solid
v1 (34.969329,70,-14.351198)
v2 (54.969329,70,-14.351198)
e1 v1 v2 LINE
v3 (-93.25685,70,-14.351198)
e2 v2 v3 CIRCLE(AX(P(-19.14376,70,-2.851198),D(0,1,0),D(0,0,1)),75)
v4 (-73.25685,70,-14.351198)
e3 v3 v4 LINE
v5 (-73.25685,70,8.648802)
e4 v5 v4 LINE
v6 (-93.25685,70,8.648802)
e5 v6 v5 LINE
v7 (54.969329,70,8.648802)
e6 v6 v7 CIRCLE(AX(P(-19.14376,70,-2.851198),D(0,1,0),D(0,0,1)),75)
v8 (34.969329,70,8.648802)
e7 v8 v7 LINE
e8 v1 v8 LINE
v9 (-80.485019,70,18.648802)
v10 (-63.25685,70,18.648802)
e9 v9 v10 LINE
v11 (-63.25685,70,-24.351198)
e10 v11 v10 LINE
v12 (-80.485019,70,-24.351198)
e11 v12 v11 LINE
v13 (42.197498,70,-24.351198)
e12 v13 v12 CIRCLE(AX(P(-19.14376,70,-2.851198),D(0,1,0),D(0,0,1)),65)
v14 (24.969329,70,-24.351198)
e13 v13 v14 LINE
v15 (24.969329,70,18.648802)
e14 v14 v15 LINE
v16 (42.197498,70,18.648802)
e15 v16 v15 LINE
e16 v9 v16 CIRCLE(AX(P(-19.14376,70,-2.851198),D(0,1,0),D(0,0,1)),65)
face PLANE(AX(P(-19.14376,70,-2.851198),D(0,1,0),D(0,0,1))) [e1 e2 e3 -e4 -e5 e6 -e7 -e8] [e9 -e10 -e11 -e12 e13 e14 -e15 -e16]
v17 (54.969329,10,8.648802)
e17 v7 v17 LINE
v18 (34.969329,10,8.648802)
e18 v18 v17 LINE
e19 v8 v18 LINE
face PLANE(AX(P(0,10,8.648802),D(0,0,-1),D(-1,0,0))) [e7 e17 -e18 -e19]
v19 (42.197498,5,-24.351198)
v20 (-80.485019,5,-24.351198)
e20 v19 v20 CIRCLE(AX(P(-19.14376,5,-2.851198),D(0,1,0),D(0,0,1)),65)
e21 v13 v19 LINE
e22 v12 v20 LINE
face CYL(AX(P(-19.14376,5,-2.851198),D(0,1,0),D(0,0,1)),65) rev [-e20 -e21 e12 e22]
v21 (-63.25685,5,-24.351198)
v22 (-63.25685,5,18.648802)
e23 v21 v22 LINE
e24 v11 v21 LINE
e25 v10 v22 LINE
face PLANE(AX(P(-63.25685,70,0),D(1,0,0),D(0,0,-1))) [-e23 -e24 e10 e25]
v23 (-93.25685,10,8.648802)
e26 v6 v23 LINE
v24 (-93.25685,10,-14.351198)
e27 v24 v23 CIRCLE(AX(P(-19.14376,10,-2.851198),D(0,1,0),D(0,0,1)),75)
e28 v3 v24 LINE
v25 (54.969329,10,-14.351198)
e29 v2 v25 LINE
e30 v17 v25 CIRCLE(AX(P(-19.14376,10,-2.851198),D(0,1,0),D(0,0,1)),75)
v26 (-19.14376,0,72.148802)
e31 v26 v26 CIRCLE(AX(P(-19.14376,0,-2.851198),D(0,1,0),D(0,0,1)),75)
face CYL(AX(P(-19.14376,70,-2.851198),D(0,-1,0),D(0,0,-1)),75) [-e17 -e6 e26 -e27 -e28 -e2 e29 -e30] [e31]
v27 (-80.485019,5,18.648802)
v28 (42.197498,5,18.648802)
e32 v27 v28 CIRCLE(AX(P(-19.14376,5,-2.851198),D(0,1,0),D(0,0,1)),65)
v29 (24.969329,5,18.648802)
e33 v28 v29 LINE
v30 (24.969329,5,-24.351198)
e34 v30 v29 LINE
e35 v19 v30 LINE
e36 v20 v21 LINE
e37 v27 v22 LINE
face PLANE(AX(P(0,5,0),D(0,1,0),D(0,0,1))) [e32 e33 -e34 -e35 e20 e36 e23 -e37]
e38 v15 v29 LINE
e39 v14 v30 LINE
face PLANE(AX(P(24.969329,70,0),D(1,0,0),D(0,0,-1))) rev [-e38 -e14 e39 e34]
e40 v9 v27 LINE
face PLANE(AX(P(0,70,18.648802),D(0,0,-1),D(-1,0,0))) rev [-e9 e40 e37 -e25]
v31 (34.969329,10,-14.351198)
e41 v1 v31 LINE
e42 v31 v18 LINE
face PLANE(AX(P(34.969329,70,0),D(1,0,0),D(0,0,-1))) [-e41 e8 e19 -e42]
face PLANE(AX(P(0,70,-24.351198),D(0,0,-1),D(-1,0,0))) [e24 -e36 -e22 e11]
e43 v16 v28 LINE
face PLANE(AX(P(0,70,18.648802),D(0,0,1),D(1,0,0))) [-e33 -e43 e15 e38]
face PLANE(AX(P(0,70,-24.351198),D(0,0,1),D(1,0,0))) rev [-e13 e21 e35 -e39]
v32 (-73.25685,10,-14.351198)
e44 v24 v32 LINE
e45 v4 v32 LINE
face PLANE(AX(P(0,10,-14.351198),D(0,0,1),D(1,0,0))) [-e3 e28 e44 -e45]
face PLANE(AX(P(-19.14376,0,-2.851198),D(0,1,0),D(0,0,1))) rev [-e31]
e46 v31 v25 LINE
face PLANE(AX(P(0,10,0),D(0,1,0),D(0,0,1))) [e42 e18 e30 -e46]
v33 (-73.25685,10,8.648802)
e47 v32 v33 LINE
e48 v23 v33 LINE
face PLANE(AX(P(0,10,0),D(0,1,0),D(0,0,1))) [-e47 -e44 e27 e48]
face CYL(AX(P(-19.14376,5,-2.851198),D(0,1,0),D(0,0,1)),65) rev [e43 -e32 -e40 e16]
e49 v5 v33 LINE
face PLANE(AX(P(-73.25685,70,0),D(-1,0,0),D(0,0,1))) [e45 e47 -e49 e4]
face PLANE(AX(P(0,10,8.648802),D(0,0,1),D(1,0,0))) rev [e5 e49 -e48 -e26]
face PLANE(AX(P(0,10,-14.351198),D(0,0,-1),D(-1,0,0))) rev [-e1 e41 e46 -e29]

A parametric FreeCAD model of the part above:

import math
import FreeCAD as App
import Part
import Sketcher

doc = App.newDocument("Part")
body = doc.addObject("PartDesign::Body", "Body")

sketch1 = body.newObject("Sketcher::SketchObject", "Sketch")
sketch1.AttachmentSupport = (doc.getObject("XZ_Plane"), [""])
sketch1.MapMode = "FlatFace"
sketch1.addGeometry(Part.Circle(App.Vector(-19, -3, 0), App.Vector(0, 0, 1), 75), False)
sketch1.addConstraint([
    Sketcher.Constraint("Diameter", 0, 150.0),
    Sketcher.Constraint("DistanceY", 0, 3, -1, 1, 2.851198),
    Sketcher.Constraint("DistanceX", 0, 3, -1, 1, 19.14376),
])
pad1 = body.newObject("PartDesign::Pad", "Pad")
pad1.Profile = sketch1
pad1.Length = 70
pad1.Reversed = True

sketch2 = body.newObject("Sketcher::SketchObject", "Sketch001")
sketch2.AttachmentSupport = (doc.getObject("XZ_Plane"), [""])
sketch2.MapMode = "FlatFace"
sketch2.AttachmentOffset = App.Placement(App.Vector(0, 0, -70), App.Rotation())
sketch2.addGeometry([
    Part.LineSegment(App.Vector(35, -14, 0), App.Vector(45, -14, 0)),
    Part.ArcOfCircle(Part.Circle(App.Vector(-19, -3, 0), App.Vector(0, 0, 1), 65), math.radians(-170), math.radians(-10)),
    Part.LineSegment(App.Vector(-83, -14, 0), App.Vector(-73, -14, 0)),
    Part.LineSegment(App.Vector(-73, -14, 0), App.Vector(-73, 9, 0)),
    Part.LineSegment(App.Vector(-73, 9, 0), App.Vector(-83, 9, 0)),
    Part.ArcOfCircle(Part.Circle(App.Vector(-19, -3, 0), App.Vector(0, 0, 1), 65), math.radians(10), math.radians(170)),
    Part.LineSegment(App.Vector(45, 9, 0), App.Vector(35, 9, 0)),
    Part.LineSegment(App.Vector(35, 9, 0), App.Vector(35, -14, 0)),
], False)
sketch2.addConstraint([
    Sketcher.Constraint("Coincident", 0, 2, 1, 2),
    Sketcher.Constraint("Coincident", 1, 1, 2, 1),
    Sketcher.Constraint("Coincident", 2, 2, 3, 1),
    Sketcher.Constraint("Coincident", 3, 2, 4, 1),
    Sketcher.Constraint("Coincident", 4, 2, 5, 2),
    Sketcher.Constraint("Coincident", 5, 1, 6, 1),
    Sketcher.Constraint("Coincident", 6, 2, 7, 1),
    Sketcher.Constraint("Coincident", 7, 2, 0, 1),
    Sketcher.Constraint("Horizontal", 0),
    Sketcher.Constraint("Horizontal", 2),
    Sketcher.Constraint("Vertical", 3),
    Sketcher.Constraint("Horizontal", 4),
    Sketcher.Constraint("Horizontal", 6),
    Sketcher.Constraint("Vertical", 7),
    Sketcher.Constraint("Coincident", 5, 3, 1, 3),
    Sketcher.Constraint("Equal", 1, 5),
    Sketcher.Constraint("Horizontal", 0, 2, 1, 1),
    Sketcher.Constraint("Horizontal", 4, 2, 5, 1),
    Sketcher.Constraint("Vertical", 1, 1, 4, 2),
    Sketcher.Constraint("Equal", 0, 2),
    Sketcher.Constraint("Radius", 1, 65.0),
    Sketcher.Constraint("DistanceY", 3, 1, 3, 2, 23.0),
    Sketcher.Constraint("DistanceY", 1, 3, -1, 1, 2.851198),
    Sketcher.Constraint("DistanceX", 0, 1, 0, 2, 9.861515),
    Sketcher.Constraint("DistanceX", 1, 3, -1, 1, 19.14376),
])
pocket1 = body.newObject("PartDesign::Pocket", "Pocket")
pocket1.Profile = sketch2
pocket1.Length = 65
pocket1.Reversed = True

sketch3 = body.newObject("Sketcher::SketchObject", "Sketch002")
sketch3.AttachmentSupport = (doc.getObject("XZ_Plane"), [""])
sketch3.MapMode = "FlatFace"
sketch3.AttachmentOffset = App.Placement(App.Vector(0, 0, -70), App.Rotation())
sketch3.addGeometry([
    Part.LineSegment(App.Vector(57, 9, 0), App.Vector(57, -14, 0)),
    Part.LineSegment(App.Vector(57, -14, 0), App.Vector(45, -14, 0)),
    Part.ArcOfCircle(Part.Circle(App.Vector(-19, -3, 0), App.Vector(0, 0, 1), 65), math.radians(-170), math.radians(-10)),
    Part.LineSegment(App.Vector(-83, -14, 0), App.Vector(-96, -14, 0)),
    Part.LineSegment(App.Vector(-96, -14, 0), App.Vector(-96, 9, 0)),
    Part.LineSegment(App.Vector(-96, 9, 0), App.Vector(-83, 9, 0)),
    Part.ArcOfCircle(Part.Circle(App.Vector(-19, -3, 0), App.Vector(0, 0, 1), 65), math.radians(10), math.radians(170)),
    Part.LineSegment(App.Vector(45, 9, 0), App.Vector(57, 9, 0)),
], False)
sketch3.addConstraint([
    Sketcher.Constraint("Coincident", 0, 2, 1, 1),
    Sketcher.Constraint("Coincident", 1, 2, 2, 2),
    Sketcher.Constraint("Coincident", 2, 1, 3, 1),
    Sketcher.Constraint("Coincident", 3, 2, 4, 1),
    Sketcher.Constraint("Coincident", 4, 2, 5, 1),
    Sketcher.Constraint("Coincident", 5, 2, 6, 2),
    Sketcher.Constraint("Coincident", 6, 1, 7, 1),
    Sketcher.Constraint("Coincident", 7, 2, 0, 1),
    Sketcher.Constraint("Vertical", 0),
    Sketcher.Constraint("Horizontal", 1),
    Sketcher.Constraint("Horizontal", 3),
    Sketcher.Constraint("Vertical", 4),
    Sketcher.Constraint("Horizontal", 5),
    Sketcher.Constraint("Horizontal", 7),
    Sketcher.Constraint("Coincident", 6, 3, 2, 3),
    Sketcher.Constraint("Equal", 2, 6),
    Sketcher.Constraint("Horizontal", 1, 2, 2, 1),
    Sketcher.Constraint("Horizontal", 5, 2, 6, 1),
    Sketcher.Constraint("Vertical", 2, 1, 5, 2),
    Sketcher.Constraint("Radius", 2, 65.0),
    Sketcher.Constraint("DistanceY", 0, 2, 0, 1, 23.0),
    Sketcher.Constraint("DistanceY", 2, 3, -1, 1, 2.851198),
    Sketcher.Constraint("DistanceX", 3, 2, 2, 3, 77.006101),
    Sketcher.Constraint("DistanceX", 1, 2, 1, 1, 12.130613),
    Sketcher.Constraint("DistanceX", 2, 3, -1, 1, 19.14376),
])
pocket2 = body.newObject("PartDesign::Pocket", "Pocket001")
pocket2.Profile = sketch3
pocket2.Length = 60
pocket2.Reversed = True

sketch4 = body.newObject("Sketcher::SketchObject", "Sketch003")
sketch4.AttachmentSupport = (doc.getObject("XZ_Plane"), [""])
sketch4.MapMode = "FlatFace"
sketch4.AttachmentOffset = App.Placement(App.Vector(0, 0, -5), App.Rotation())
sketch4.addGeometry([
    Part.ArcOfCircle(Part.Circle(App.Vector(-19, -3, 0), App.Vector(0, 0, 1), 65), math.radians(-169.81), math.radians(-160.68)),
    Part.LineSegment(App.Vector(-83, -14, 0), App.Vector(-73, -14, 0)),
    Part.LineSegment(App.Vector(-73, -14, 0), App.Vector(-73, 9, 0)),
    Part.LineSegment(App.Vector(-73, 9, 0), App.Vector(-83, 9, 0)),
    Part.ArcOfCircle(Part.Circle(App.Vector(-19, -3, 0), App.Vector(0, 0, 1), 65), math.radians(160.68), math.radians(169.81)),
    Part.LineSegment(App.Vector(-80, 19, 0), App.Vector(-63, 19, 0)),
    Part.LineSegment(App.Vector(-63, 19, 0), App.Vector(-63, -24, 0)),
    Part.LineSegment(App.Vector(-63, -24, 0), App.Vector(-80, -24, 0)),
    Part.LineSegment(App.Vector(25, -24, 0), App.Vector(25, 19, 0)),
    Part.LineSegment(App.Vector(25, 19, 0), App.Vector(42, 19, 0)),
    Part.ArcOfCircle(Part.Circle(App.Vector(-19, -3, 0), App.Vector(0, 0, 1), 65), math.radians(10.19), math.radians(19.32)),
    Part.LineSegment(App.Vector(45, 9, 0), App.Vector(35, 9, 0)),
    Part.LineSegment(App.Vector(35, 9, 0), App.Vector(35, -14, 0)),
    Part.LineSegment(App.Vector(35, -14, 0), App.Vector(45, -14, 0)),
    Part.ArcOfCircle(Part.Circle(App.Vector(-19, -3, 0), App.Vector(0, 0, 1), 65), math.radians(-19.32), math.radians(-10.19)),
    Part.LineSegment(App.Vector(42, -24, 0), App.Vector(25, -24, 0)),
], False)
sketch4.addConstraint([
    Sketcher.Constraint("Coincident", 0, 1, 1, 1),
    Sketcher.Constraint("Coincident", 1, 2, 2, 1),
    Sketcher.Constraint("Coincident", 2, 2, 3, 1),
    Sketcher.Constraint("Coincident", 3, 2, 4, 2),
    Sketcher.Constraint("Coincident", 4, 1, 5, 1),
    Sketcher.Constraint("Coincident", 5, 2, 6, 1),
    Sketcher.Constraint("Coincident", 6, 2, 7, 1),
    Sketcher.Constraint("Coincident", 7, 2, 0, 2),
    Sketcher.Constraint("Coincident", 8, 2, 9, 1),
    Sketcher.Constraint("Coincident", 9, 2, 10, 2),
    Sketcher.Constraint("Coincident", 10, 1, 11, 1),
    Sketcher.Constraint("Coincident", 11, 2, 12, 1),
    Sketcher.Constraint("Coincident", 12, 2, 13, 1),
    Sketcher.Constraint("Coincident", 13, 2, 14, 2),
    Sketcher.Constraint("Coincident", 14, 1, 15, 1),
    Sketcher.Constraint("Coincident", 15, 2, 8, 1),
    Sketcher.Constraint("Horizontal", 1),
    Sketcher.Constraint("Vertical", 2),
    Sketcher.Constraint("Horizontal", 3),
    Sketcher.Constraint("Horizontal", 5),
    Sketcher.Constraint("Vertical", 6),
    Sketcher.Constraint("Horizontal", 7),
    Sketcher.Constraint("Vertical", 8),
    Sketcher.Constraint("Horizontal", 9),
    Sketcher.Constraint("Horizontal", 11),
    Sketcher.Constraint("Vertical", 12),
    Sketcher.Constraint("Horizontal", 13),
    Sketcher.Constraint("Horizontal", 15),
    Sketcher.Constraint("Coincident", 4, 3, 0, 3),
    Sketcher.Constraint("Coincident", 10, 3, 0, 3),
    Sketcher.Constraint("Coincident", 14, 3, 0, 3),
    Sketcher.Constraint("Equal", 0, 4),
    Sketcher.Constraint("Equal", 4, 10),
    Sketcher.Constraint("Equal", 10, 14),
    Sketcher.Constraint("Horizontal", 5, 2, 8, 2),
    Sketcher.Constraint("Horizontal", 3, 2, 10, 1),
    Sketcher.Constraint("Horizontal", 1, 2, 12, 2),
    Sketcher.Constraint("Horizontal", 7, 2, 14, 1),
    Sketcher.Constraint("Vertical", 0, 1, 3, 2),
    Sketcher.Constraint("Vertical", 4, 1, 7, 2),
    Sketcher.Constraint("Equal", 7, 9),
    Sketcher.Constraint("Equal", 3, 11),
    Sketcher.Constraint("Radius", 0, 65.0),
    Sketcher.Constraint("DistanceY", 2, 1, 2, 2, 23.0),
    Sketcher.Constraint("DistanceY", 6, 2, 6, 1, 43.0),
    Sketcher.Constraint("DistanceX", 2, 2, 5, 2, 10.0),
    Sketcher.Constraint("DistanceX", 5, 1, 5, 2, 17.228169),
    Sketcher.Constraint("DistanceY", 0, 3, -1, 1, 2.851198),
    Sketcher.Constraint("DistanceX", -1, 1, 9, 2, 42.197498),
])
pad2 = body.newObject("PartDesign::Pad", "Pad001")
pad2.Profile = sketch4
pad2.Length = 65
pad2.Reversed = True

doc.recompute()
